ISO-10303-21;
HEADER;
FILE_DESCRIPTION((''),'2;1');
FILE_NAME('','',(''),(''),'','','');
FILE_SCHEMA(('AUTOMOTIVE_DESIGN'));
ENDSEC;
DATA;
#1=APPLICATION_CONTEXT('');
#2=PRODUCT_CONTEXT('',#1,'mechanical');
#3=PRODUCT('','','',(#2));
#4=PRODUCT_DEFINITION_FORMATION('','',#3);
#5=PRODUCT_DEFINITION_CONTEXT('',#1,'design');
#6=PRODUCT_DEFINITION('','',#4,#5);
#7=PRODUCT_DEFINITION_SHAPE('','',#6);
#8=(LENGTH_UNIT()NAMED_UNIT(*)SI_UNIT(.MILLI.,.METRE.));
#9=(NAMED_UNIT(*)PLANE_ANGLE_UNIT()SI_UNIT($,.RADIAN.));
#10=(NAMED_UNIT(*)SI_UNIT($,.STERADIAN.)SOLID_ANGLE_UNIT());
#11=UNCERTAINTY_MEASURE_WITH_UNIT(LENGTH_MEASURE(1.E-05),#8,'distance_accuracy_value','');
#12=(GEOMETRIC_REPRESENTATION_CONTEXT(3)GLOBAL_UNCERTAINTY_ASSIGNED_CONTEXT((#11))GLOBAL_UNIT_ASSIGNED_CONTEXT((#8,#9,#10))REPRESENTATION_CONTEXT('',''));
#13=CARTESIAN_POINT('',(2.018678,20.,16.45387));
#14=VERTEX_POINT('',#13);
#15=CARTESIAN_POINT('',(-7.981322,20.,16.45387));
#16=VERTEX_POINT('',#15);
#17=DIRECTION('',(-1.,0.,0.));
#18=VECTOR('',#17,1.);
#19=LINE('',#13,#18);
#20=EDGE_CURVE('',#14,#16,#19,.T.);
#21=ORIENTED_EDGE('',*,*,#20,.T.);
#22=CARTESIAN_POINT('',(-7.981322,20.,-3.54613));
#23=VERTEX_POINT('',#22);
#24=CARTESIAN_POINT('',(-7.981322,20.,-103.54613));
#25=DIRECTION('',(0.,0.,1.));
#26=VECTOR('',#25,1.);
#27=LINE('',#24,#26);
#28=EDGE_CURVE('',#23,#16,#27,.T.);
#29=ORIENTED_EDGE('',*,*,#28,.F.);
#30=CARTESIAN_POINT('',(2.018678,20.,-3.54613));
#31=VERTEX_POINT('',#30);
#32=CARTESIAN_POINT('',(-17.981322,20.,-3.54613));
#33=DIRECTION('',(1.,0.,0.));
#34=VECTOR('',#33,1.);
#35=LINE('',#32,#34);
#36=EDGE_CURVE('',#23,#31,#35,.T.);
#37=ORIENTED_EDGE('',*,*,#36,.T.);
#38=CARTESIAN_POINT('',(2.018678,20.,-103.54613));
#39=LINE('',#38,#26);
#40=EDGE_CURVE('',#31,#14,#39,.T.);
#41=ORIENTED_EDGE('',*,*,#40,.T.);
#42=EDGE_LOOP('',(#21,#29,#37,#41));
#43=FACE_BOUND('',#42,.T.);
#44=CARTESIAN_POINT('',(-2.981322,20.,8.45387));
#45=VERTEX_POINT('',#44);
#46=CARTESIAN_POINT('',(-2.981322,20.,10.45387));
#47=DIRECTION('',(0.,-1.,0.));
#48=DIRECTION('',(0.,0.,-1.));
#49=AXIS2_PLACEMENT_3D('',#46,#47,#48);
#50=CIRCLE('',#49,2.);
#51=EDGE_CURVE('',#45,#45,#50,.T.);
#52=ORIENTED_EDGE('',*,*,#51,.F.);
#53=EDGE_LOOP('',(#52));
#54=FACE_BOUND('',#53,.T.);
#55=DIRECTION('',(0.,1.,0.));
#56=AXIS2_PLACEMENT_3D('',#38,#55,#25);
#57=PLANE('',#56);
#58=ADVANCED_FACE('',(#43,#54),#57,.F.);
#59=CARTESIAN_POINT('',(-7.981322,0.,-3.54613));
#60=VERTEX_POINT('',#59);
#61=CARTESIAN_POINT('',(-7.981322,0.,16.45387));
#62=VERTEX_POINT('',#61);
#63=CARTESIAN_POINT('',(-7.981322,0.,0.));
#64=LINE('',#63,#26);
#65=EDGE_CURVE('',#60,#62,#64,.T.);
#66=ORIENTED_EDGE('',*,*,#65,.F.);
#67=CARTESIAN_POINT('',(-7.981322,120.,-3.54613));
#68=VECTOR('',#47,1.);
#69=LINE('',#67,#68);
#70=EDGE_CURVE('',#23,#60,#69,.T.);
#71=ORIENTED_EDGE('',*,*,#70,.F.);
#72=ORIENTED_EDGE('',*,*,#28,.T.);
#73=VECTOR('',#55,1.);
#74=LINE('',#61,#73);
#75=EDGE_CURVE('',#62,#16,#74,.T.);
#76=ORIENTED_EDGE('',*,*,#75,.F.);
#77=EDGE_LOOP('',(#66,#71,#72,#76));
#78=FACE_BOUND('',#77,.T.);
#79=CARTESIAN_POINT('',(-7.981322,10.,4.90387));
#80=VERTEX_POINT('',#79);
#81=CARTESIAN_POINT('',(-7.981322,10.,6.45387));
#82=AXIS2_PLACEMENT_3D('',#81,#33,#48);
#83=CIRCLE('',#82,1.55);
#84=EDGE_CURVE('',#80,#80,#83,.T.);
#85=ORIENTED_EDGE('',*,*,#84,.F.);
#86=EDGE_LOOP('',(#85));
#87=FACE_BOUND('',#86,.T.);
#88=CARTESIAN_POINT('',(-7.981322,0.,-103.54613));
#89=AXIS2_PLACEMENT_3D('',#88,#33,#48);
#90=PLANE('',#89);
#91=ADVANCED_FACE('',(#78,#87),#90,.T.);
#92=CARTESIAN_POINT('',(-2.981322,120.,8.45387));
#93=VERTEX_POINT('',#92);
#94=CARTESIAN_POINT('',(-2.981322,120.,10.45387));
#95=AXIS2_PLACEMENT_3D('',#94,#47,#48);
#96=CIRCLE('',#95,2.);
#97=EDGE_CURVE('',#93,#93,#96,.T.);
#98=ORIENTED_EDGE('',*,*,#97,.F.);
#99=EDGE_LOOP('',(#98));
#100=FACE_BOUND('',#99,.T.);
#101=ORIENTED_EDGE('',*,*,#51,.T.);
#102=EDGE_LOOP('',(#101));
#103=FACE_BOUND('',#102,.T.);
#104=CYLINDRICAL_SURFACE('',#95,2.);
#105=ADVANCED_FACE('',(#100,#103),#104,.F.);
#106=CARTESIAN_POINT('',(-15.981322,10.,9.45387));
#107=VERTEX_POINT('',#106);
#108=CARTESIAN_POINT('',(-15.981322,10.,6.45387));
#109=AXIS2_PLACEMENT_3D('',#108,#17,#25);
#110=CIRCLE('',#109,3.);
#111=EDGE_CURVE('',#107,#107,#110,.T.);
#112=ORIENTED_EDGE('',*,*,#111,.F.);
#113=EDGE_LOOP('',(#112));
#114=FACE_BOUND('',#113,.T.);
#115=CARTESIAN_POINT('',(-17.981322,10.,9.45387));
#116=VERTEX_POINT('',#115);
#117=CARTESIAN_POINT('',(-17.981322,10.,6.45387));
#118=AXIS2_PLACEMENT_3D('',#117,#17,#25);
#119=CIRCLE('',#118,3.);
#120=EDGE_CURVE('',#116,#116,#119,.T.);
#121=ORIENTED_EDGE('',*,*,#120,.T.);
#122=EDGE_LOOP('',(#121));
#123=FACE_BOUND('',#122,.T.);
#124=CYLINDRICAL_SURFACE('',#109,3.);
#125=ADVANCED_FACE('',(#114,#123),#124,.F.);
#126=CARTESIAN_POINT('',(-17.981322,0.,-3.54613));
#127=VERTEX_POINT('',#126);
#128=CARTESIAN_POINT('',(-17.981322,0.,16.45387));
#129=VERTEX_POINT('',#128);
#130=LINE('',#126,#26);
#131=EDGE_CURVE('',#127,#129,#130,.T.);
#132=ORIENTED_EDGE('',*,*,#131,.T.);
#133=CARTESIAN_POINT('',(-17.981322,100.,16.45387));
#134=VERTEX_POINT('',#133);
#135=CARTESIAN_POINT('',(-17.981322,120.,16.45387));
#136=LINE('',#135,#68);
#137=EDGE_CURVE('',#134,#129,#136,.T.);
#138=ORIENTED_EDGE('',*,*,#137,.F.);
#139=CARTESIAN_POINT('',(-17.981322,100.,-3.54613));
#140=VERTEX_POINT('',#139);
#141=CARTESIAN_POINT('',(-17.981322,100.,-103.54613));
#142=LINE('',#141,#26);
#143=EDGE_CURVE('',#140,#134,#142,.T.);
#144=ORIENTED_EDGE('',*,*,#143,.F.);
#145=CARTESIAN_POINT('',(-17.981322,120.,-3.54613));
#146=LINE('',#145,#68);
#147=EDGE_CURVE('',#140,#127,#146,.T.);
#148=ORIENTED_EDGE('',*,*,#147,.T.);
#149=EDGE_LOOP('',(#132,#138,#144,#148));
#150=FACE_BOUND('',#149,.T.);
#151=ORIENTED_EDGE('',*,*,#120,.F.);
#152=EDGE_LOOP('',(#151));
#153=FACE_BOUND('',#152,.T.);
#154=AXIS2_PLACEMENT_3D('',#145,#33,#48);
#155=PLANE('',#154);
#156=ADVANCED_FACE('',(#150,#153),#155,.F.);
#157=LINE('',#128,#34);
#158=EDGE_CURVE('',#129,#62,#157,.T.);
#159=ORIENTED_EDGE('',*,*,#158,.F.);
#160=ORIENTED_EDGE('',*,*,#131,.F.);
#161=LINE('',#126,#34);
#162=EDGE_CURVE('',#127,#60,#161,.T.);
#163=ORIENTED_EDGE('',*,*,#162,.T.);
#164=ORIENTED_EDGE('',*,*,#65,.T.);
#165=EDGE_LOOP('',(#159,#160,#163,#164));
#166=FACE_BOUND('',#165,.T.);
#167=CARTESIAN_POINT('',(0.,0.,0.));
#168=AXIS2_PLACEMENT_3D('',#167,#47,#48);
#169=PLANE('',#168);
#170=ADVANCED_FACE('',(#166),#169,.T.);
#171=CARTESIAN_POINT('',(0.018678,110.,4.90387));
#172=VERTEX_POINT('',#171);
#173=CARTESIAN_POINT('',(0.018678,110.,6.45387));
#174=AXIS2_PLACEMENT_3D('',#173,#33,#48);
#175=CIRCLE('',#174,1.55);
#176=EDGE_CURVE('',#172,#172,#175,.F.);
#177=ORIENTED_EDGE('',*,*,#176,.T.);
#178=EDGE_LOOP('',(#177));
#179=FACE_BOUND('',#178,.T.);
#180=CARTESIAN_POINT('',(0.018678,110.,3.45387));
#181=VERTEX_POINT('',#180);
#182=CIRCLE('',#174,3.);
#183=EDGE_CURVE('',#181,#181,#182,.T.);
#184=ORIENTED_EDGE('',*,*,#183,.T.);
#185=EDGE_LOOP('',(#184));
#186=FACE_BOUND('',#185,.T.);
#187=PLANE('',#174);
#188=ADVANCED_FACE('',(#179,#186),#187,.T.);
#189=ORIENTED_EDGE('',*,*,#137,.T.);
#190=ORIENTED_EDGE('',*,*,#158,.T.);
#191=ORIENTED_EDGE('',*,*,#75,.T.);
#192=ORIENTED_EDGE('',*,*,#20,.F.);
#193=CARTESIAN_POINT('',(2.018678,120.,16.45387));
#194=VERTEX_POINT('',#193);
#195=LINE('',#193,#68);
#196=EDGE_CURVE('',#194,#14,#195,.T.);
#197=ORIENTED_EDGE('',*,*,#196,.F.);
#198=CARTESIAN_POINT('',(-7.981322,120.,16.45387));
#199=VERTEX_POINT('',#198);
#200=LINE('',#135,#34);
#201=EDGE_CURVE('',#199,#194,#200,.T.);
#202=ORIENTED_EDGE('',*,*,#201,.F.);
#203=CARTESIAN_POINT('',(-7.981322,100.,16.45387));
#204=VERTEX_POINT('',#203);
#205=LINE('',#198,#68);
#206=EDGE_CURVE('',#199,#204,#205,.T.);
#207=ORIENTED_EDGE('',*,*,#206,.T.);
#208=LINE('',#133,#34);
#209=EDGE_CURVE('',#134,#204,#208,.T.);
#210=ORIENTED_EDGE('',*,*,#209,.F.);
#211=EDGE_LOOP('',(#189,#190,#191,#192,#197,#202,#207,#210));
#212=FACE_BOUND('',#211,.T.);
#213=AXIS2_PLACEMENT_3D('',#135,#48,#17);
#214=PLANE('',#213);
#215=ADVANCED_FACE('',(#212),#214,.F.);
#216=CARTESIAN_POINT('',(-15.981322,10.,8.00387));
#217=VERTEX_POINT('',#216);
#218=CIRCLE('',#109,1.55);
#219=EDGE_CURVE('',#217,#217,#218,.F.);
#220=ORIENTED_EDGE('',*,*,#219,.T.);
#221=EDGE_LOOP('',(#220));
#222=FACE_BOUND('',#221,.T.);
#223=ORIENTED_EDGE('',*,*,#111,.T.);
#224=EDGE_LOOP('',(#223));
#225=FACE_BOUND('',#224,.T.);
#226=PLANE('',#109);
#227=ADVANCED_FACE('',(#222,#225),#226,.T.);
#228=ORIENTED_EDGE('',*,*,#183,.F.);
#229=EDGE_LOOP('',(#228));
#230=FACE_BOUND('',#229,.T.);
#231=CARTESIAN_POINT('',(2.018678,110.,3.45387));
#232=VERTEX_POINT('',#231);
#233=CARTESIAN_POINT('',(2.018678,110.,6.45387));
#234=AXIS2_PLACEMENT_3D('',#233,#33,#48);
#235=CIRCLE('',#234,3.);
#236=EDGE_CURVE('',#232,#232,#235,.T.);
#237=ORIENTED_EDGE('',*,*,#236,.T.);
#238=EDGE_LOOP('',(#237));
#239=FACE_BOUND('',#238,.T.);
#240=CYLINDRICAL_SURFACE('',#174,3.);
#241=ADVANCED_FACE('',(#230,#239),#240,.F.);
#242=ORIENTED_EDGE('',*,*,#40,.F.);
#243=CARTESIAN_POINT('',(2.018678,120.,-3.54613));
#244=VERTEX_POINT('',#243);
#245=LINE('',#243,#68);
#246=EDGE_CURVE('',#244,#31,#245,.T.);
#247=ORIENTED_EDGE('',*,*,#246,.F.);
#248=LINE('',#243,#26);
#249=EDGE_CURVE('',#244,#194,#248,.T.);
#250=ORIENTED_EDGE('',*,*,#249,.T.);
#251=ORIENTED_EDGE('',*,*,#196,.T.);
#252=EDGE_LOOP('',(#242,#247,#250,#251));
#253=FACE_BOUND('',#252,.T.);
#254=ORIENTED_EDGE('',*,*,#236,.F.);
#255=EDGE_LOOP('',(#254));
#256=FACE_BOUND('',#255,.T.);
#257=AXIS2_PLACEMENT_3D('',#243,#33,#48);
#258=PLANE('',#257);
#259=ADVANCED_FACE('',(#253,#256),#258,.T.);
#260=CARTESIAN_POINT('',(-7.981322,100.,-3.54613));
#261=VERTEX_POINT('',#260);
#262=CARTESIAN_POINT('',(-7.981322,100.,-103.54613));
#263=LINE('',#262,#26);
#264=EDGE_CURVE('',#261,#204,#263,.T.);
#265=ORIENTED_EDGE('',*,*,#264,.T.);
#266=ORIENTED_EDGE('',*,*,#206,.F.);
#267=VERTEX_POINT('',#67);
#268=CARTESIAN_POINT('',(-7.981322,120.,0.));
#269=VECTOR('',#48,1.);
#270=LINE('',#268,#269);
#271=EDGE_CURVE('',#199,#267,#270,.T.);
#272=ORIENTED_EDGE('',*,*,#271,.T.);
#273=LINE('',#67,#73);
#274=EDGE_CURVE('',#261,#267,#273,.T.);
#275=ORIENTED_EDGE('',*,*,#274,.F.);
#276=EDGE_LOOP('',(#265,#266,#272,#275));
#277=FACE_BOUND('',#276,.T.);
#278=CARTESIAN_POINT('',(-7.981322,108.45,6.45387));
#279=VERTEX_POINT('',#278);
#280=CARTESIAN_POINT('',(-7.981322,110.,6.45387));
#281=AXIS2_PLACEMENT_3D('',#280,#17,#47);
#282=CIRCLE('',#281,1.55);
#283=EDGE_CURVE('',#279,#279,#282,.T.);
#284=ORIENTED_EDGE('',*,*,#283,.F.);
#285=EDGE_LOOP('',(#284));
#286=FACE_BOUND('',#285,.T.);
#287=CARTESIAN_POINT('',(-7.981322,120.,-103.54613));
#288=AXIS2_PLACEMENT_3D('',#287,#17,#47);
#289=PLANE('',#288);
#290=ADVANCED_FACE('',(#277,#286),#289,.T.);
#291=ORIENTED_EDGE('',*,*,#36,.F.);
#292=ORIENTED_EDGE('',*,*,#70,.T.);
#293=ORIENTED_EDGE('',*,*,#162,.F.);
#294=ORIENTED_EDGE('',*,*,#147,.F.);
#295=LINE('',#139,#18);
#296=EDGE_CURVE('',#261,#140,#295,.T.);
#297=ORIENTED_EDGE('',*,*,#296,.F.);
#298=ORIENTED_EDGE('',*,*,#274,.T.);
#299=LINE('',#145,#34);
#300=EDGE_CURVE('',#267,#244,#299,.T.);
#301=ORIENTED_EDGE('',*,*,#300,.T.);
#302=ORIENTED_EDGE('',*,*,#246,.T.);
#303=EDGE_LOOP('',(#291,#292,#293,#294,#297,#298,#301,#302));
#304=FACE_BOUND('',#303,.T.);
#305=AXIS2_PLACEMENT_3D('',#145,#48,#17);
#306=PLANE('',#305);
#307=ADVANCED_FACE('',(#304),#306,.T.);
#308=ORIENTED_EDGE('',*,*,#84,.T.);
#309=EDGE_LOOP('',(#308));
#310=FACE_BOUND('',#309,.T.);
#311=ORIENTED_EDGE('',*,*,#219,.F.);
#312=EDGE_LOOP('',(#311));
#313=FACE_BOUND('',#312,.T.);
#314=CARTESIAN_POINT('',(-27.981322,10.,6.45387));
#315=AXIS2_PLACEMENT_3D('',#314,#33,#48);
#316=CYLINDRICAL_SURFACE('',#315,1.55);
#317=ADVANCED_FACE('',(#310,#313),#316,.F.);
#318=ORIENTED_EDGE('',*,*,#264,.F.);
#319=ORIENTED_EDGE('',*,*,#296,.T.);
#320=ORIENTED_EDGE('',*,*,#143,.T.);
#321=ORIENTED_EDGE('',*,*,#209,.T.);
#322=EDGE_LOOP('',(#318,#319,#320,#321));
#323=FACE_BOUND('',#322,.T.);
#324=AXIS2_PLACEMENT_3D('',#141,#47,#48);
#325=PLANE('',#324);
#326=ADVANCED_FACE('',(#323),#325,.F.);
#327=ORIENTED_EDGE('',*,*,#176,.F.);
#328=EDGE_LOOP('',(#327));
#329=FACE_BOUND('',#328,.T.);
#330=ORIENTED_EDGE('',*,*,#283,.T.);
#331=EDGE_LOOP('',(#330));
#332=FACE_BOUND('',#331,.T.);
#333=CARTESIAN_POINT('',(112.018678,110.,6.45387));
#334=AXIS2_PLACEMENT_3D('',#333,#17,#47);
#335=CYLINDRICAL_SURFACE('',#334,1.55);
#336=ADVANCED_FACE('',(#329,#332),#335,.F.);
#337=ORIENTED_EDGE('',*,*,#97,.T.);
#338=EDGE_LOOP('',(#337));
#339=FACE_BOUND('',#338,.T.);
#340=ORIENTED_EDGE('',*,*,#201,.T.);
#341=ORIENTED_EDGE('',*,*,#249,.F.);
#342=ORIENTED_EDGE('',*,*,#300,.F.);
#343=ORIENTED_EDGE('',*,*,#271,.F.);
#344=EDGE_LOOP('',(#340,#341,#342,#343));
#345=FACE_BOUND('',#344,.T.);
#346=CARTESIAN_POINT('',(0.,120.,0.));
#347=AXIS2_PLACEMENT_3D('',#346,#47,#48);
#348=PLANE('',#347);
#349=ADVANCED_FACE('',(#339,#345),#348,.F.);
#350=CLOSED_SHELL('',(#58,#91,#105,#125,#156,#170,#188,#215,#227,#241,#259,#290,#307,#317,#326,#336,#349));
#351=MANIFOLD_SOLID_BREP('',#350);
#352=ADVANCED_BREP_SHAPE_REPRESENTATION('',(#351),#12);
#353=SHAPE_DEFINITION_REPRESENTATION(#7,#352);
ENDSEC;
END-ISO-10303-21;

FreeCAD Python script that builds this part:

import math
import FreeCAD as App
import Part
import Sketcher

V = App.Vector


def add_polygon(sketch, points):
    """Adds a closed chain of lines whose ends are joined by coincident constraints."""
    first, n = sketch.GeometryCount, len(points)
    for a, b in zip(points, points[1:] + points[:1]):
        sketch.addGeometry(Part.LineSegment(App.Vector(*a, 0), App.Vector(*b, 0)), False)
    for i in range(n):
        sketch.addConstraint(Sketcher.Constraint("Coincident", first + i, 2, first + (i + 1) % n, 1))

doc = App.newDocument("Part")
body = doc.addObject("PartDesign::Body", "Body")

# Sketch on XZ plane
sketch1 = body.newObject("Sketcher::SketchObject", "Sketch")
sketch1.AttachmentSupport = (doc.getObject("XZ_Plane"), [""])
sketch1.MapMode = "FlatFace"
add_polygon(sketch1, [(-18, -4), (-18, 16), (2, 16), (2, -4)])  # lines 0-3
sketch1.addConstraint([
    Sketcher.Constraint("Vertical", 0),
    Sketcher.Constraint("Horizontal", 1),
    Sketcher.Constraint("Vertical", 2),
    Sketcher.Constraint("Horizontal", 3),
    Sketcher.Constraint("Equal", 3, 0),
    Sketcher.Constraint("DistanceX", 1, 1, 1, 2, 20.0),
    Sketcher.Constraint("DistanceX", 0, 2, -1, 1, 17.981322),
    Sketcher.Constraint("DistanceY", -1, 1, 0, 2, 16.45387),
])
pad1 = body.newObject("PartDesign::Pad", "Pad")
pad1.Profile = sketch1
pad1.Length = 120
pad1.Reversed = True

# Sketch on XY plane
sketch2 = body.newObject("Sketcher::SketchObject", "Sketch001")
sketch2.AttachmentSupport = (doc.getObject("XY_Plane"), [""])
sketch2.MapMode = "FlatFace"
sketch2.AttachmentOffset = App.Placement(V(0, 0, 16.45387), App.Rotation())
add_polygon(sketch2, [(-18, 120), (-18, 100), (-8, 100), (-8, 120)])  # lines 0-3
sketch2.addConstraint([
    Sketcher.Constraint("Vertical", 0),
    Sketcher.Constraint("Horizontal", 1),
    Sketcher.Constraint("Vertical", 2),
    Sketcher.Constraint("Horizontal", 3),
    Sketcher.Constraint("DistanceX", 1, 1, 1, 2, 10.0),
    Sketcher.Constraint("DistanceY", 0, 2, 0, 1, 20.0),
    Sketcher.Constraint("DistanceY", -1, 1, 0, 2, 100.0),
    Sketcher.Constraint("DistanceX", 0, 2, -1, 1, 17.981322),
])
pocket1 = body.newObject("PartDesign::Pocket", "Pocket")
pocket1.Profile = sketch2
pocket1.Length = 120

# Sketch on XY plane
sketch3 = body.newObject("Sketcher::SketchObject", "Sketch002")
sketch3.AttachmentSupport = (doc.getObject("XY_Plane"), [""])
sketch3.MapMode = "FlatFace"
sketch3.AttachmentOffset = App.Placement(V(0, 0, 16.45387), App.Rotation())
add_polygon(sketch3, [(-8, 20), (-8, 0), (2, 0), (2, 20)])  # lines 0-3
sketch3.addConstraint([
    Sketcher.Constraint("Vertical", 0),
    Sketcher.Constraint("Horizontal", 1),
    Sketcher.Constraint("Vertical", 2),
    Sketcher.Constraint("Horizontal", 3),
    Sketcher.Constraint("PointOnObject", 0, 2, -1),
    Sketcher.Constraint("DistanceX", 1, 1, 1, 2, 10.0),
    Sketcher.Constraint("DistanceY", 0, 2, 0, 1, 20.0),
    Sketcher.Constraint("DistanceX", 0, 2, -1, 1, 7.981322),
])
pocket2 = body.newObject("PartDesign::Pocket", "Pocket001")
pocket2.Profile = sketch3
pocket2.Length = 120

# Sketch on YZ plane
sketch4 = body.newObject("Sketcher::SketchObject", "Sketch003")
sketch4.AttachmentSupport = (doc.getObject("YZ_Plane"), [""])
sketch4.MapMode = "FlatFace"
sketch4.AttachmentOffset = App.Placement(V(0, 0, -7.981322), App.Rotation())
sketch4.addGeometry([
    Part.ArcOfCircle(Part.Circle(V(110, 6.5, 0), V(0, 0, 1), 1.6), math.radians(-45), math.radians(90)),
    Part.ArcOfCircle(Part.Circle(V(110, 6.5, 0), V(0, 0, 1), 1.6), math.radians(135), math.radians(315)),
    Part.ArcOfCircle(Part.Circle(V(110, 6.5, 0), V(0, 0, 1), 1.6), math.radians(90), math.radians(135)),
], False)
sketch4.addConstraint([
    Sketcher.Constraint("Tangent", 0, 1, 1, 2),
    Sketcher.Constraint("Tangent", 1, 1, 2, 2),
    Sketcher.Constraint("Tangent", 2, 1, 0, 2),
    Sketcher.Constraint("Vertical", 1, 3, 2, 1),
    Sketcher.Constraint("Radius", 0, 1.55),
    Sketcher.Constraint("DistanceX", -1, 1, 0, 3, 110.0),
    Sketcher.Constraint("DistanceY", -1, 1, 0, 3, 6.45387),
    Sketcher.Constraint("DistanceX", 1, 1, 0, 1, 2.192031),
    Sketcher.Constraint("DistanceX", -1, 1, 0, 1, 111.096016),
])
pocket3 = body.newObject("PartDesign::Pocket", "Pocket002")
pocket3.Profile = sketch4
pocket3.Length = 120
pocket3.Reversed = True

# Sketch on YZ plane
sketch5 = body.newObject("Sketcher::SketchObject", "Sketch004")
sketch5.AttachmentSupport = (doc.getObject("YZ_Plane"), [""])
sketch5.MapMode = "FlatFace"
sketch5.AttachmentOffset = App.Placement(V(0, 0, 2.018678), App.Rotation())
sketch5.addGeometry(Part.Circle(V(110, 6.5, 0), V(0, 0, 1), 3), False)
sketch5.addConstraint([
    Sketcher.Constraint("Diameter", 0, 6.0),
    Sketcher.Constraint("DistanceX", -1, 1, 0, 3, 110.0),
    Sketcher.Constraint("DistanceY", -1, 1, 0, 3, 6.45387),
])
pocket4 = body.newObject("PartDesign::Pocket", "Pocket003")
pocket4.Profile = sketch5
pocket4.Length = 2

# Sketch on YZ plane
sketch6 = body.newObject("Sketcher::SketchObject", "Sketch005")
sketch6.AttachmentSupport = (doc.getObject("YZ_Plane"), [""])
sketch6.MapMode = "FlatFace"
sketch6.AttachmentOffset = App.Placement(V(0, 0, -7.981322), App.Rotation())
sketch6.addGeometry([
    Part.ArcOfCircle(Part.Circle(V(10, 6.5, 0), V(0, 0, 1), 1.6), math.radians(-90), math.radians(45)),
    Part.ArcOfCircle(Part.Circle(V(10, 6.5, 0), V(0, 0, 1), 1.6), math.radians(45), math.radians(225)),
    Part.ArcOfCircle(Part.Circle(V(10, 6.5, 0), V(0, 0, 1), 1.5), math.radians(-135), math.radians(-90)),
], False)
sketch6.addConstraint([
    Sketcher.Constraint("Tangent", 0, 2, 1, 1),
    Sketcher.Constraint("Tangent", 1, 2, 2, 1),
    Sketcher.Constraint("Tangent", 2, 2, 0, 1),
    Sketcher.Constraint("Vertical", 1, 3, 2, 2),
    Sketcher.Constraint("Radius", 0, 1.55),
    Sketcher.Constraint("DistanceX", -1, 1, 0, 3, 10.0),
    Sketcher.Constraint("DistanceY", -1, 1, 0, 3, 6.45387),
    Sketcher.Constraint("DistanceX", 1, 2, 0, 2, 2.192031),
    Sketcher.Constraint("DistanceX", -1, 1, 0, 2, 11.096016),
])
pocket5 = body.newObject("PartDesign::Pocket", "Pocket004")
pocket5.Profile = sketch6
pocket5.Length = 20

# Sketch on YZ plane
sketch7 = body.newObject("Sketcher::SketchObject", "Sketch006")
sketch7.AttachmentSupport = (doc.getObject("YZ_Plane"), [""])
sketch7.MapMode = "FlatFace"
sketch7.AttachmentOffset = App.Placement(V(0, 0, -17.981322), App.Rotation())
sketch7.addGeometry(Part.Circle(V(10, 6.5, 0), V(0, 0, 1), 3), False)
sketch7.addConstraint([
    Sketcher.Constraint("Diameter", 0, 6.0),
    Sketcher.Constraint("DistanceX", -1, 1, 0, 3, 10.0),
    Sketcher.Constraint("DistanceY", -1, 1, 0, 3, 6.45387),
])
pocket6 = body.newObject("PartDesign::Pocket", "Pocket005")
pocket6.Profile = sketch7
pocket6.Length = 2
pocket6.Reversed = True

# Sketch on XZ plane
sketch8 = body.newObject("Sketcher::SketchObject", "Sketch007")
sketch8.AttachmentSupport = (doc.getObject("XZ_Plane"), [""])
sketch8.MapMode = "FlatFace"
sketch8.AttachmentOffset = App.Placement(V(0, 0, -20), App.Rotation())
sketch8.addGeometry(Part.Circle(V(-3, 10.5, 0), V(0, 0, 1), 2), False)
sketch8.addConstraint([
    Sketcher.Constraint("Diameter", 0, 4.0),
    Sketcher.Constraint("DistanceX", 0, 3, -1, 1, 2.981322),
    Sketcher.Constraint("DistanceY", -1, 1, 0, 3, 10.45387),
])
pocket7 = body.newObject("PartDesign::Pocket", "Pocket006")
pocket7.Profile = sketch8
pocket7.Length = 100

doc.recompute()
